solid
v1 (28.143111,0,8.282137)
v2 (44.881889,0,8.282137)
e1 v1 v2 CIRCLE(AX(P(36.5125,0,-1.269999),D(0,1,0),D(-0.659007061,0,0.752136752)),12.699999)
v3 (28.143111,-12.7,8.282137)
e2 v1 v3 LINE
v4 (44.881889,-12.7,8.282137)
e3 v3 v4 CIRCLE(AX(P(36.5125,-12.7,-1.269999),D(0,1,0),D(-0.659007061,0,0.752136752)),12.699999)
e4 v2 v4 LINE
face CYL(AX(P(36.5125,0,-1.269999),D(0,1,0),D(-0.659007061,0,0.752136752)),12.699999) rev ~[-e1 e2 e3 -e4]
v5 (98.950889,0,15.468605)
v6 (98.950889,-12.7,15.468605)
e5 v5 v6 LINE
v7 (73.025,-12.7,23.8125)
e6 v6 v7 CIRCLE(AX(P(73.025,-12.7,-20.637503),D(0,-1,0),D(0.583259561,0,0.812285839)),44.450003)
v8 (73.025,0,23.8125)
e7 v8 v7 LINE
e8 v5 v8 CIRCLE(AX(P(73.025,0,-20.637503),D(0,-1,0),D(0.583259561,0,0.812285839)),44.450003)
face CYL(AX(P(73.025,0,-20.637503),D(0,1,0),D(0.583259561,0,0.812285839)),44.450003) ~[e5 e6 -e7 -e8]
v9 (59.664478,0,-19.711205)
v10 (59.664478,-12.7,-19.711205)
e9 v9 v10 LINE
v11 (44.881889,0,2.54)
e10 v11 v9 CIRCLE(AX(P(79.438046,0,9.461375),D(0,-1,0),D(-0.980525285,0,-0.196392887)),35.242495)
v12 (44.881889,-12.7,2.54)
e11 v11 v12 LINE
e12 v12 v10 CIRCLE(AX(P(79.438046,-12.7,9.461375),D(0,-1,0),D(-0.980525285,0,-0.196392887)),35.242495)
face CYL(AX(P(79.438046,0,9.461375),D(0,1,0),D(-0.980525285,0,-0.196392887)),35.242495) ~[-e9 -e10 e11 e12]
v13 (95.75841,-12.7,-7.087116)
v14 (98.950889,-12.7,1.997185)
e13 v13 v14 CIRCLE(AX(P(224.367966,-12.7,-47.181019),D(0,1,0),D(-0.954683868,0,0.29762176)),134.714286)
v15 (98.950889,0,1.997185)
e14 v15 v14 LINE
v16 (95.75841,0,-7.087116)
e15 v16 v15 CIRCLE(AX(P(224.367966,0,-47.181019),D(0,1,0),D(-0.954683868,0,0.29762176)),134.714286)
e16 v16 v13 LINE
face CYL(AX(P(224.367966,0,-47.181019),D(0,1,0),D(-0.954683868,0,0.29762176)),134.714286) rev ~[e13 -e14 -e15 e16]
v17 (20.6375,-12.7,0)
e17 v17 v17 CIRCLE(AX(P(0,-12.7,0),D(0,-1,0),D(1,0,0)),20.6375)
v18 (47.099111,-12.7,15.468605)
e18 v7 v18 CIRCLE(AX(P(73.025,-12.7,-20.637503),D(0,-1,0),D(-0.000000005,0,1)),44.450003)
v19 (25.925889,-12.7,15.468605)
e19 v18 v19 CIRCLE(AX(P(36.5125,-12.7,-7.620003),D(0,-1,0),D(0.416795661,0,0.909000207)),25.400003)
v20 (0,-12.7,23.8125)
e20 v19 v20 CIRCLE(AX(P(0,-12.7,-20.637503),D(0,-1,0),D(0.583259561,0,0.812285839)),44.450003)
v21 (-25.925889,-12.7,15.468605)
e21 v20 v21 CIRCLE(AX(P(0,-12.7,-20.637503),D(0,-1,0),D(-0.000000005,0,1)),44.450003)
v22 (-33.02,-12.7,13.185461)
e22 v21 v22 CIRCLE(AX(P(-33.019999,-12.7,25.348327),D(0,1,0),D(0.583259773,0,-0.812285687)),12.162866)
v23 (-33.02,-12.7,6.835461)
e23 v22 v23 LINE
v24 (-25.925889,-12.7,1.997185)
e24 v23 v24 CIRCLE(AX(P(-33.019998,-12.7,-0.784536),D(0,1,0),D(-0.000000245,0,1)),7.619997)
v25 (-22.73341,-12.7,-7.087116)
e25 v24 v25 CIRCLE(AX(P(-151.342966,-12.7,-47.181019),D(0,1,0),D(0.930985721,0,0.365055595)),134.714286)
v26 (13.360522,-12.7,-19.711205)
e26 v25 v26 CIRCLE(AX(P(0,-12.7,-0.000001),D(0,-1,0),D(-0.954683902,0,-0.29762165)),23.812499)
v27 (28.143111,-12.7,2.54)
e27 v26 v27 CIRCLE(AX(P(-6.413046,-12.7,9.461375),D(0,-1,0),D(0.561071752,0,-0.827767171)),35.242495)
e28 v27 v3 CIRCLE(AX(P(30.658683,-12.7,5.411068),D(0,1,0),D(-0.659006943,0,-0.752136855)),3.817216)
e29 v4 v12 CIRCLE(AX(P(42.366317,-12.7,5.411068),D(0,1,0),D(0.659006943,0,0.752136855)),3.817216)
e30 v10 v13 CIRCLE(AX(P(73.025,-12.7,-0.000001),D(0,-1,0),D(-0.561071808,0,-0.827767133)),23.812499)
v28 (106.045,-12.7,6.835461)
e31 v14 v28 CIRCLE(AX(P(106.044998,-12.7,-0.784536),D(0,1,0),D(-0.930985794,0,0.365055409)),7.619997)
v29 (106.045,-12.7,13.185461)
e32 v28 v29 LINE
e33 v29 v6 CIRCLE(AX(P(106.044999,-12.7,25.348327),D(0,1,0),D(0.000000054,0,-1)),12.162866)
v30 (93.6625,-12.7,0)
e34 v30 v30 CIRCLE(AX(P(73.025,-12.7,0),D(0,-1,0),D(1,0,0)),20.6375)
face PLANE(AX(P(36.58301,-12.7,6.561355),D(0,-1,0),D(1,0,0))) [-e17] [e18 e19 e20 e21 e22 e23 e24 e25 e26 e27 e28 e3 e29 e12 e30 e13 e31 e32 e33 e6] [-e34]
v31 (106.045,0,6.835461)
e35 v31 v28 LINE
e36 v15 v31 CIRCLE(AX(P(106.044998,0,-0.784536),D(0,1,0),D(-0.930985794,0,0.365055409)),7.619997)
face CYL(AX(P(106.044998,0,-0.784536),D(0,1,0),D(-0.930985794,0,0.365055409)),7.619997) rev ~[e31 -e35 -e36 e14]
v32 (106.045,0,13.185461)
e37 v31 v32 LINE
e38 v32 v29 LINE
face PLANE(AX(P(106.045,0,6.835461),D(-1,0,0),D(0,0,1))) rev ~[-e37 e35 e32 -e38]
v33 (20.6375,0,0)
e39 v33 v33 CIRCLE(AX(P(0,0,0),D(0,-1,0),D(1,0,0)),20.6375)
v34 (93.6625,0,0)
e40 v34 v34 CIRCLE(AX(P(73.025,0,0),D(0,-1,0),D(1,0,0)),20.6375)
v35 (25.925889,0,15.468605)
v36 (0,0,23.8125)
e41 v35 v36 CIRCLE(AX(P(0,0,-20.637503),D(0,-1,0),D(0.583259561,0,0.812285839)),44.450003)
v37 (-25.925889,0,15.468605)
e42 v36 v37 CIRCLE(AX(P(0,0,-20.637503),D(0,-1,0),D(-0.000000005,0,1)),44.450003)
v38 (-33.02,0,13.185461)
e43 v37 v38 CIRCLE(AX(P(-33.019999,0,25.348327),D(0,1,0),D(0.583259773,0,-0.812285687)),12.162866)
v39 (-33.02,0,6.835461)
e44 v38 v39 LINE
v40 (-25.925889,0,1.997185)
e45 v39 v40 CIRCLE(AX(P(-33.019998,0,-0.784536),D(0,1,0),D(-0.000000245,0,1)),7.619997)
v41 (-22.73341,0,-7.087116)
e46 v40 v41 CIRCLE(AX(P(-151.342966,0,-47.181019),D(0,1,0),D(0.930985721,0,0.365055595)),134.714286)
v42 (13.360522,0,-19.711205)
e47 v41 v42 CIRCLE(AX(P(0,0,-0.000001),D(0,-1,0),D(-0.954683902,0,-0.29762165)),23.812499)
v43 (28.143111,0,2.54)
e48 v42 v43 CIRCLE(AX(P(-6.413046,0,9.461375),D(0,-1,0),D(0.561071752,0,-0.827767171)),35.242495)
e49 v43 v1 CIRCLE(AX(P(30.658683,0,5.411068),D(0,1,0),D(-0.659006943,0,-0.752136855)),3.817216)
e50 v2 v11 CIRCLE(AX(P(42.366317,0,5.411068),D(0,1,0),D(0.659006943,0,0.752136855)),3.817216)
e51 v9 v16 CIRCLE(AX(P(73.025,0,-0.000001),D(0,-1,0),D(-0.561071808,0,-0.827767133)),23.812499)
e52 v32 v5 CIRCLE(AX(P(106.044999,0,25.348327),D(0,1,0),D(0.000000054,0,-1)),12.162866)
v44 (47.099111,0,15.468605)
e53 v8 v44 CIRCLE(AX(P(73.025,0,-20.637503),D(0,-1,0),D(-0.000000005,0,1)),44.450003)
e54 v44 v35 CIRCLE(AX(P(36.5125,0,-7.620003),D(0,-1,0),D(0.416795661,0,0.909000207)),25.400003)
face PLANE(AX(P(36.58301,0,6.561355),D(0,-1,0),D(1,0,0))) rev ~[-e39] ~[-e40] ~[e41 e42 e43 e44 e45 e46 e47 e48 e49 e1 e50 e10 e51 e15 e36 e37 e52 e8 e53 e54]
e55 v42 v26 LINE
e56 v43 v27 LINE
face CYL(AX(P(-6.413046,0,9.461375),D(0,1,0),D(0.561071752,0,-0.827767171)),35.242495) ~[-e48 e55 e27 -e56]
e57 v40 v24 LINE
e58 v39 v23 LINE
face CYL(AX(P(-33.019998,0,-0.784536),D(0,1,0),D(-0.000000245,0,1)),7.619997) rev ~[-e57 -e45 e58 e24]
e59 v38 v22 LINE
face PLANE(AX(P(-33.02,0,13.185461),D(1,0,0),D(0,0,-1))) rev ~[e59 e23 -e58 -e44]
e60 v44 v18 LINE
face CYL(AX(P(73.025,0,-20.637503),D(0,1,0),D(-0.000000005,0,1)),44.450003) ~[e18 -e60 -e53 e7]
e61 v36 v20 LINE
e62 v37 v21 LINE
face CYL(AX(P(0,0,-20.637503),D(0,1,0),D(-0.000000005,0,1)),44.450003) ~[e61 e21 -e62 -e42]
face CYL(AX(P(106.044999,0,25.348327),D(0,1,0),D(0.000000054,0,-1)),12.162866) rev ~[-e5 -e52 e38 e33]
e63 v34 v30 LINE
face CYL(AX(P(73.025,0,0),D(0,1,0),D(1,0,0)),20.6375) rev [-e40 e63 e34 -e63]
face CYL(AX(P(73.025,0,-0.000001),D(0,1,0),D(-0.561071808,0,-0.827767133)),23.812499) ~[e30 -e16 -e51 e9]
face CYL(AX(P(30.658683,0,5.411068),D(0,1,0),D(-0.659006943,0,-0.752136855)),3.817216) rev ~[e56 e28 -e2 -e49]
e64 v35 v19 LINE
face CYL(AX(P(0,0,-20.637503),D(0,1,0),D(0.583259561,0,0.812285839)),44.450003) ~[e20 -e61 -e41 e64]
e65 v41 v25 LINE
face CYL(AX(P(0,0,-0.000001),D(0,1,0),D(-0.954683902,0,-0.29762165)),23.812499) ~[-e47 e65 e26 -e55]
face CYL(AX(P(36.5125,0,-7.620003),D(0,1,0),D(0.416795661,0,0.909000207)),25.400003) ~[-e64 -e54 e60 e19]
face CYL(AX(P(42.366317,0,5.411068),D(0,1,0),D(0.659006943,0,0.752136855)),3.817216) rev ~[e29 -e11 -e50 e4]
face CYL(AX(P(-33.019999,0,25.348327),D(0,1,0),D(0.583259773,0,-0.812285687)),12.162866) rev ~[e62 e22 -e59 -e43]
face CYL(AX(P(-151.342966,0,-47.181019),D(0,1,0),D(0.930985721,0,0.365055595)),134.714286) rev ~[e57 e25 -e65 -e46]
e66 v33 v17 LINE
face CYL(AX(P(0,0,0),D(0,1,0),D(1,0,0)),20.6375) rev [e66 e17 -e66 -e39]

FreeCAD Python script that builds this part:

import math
import FreeCAD as App
import Part
import Sketcher
from FreeCAD import Vector
Q = App.Units.Quantity

doc = App.newDocument("Part")
body = doc.addObject("PartDesign::Body", "Body")

# Sketch on XZ plane
sketch1 = body.newObject("Sketcher::SketchObject", "Sketch")
sketch1.AttachmentSupport = (doc.getObject("XZ_Plane"), [""])
sketch1.MapMode = "FlatFace"
sketch1.addGeometry([
    Part.ArcOfCircle(Part.Circle(Vector(-6.413046, 9.461375, 0), Vector(0, 0, 1), 35.242495), math.radians(-55.870051), math.radians(-11.326104)),  # 0
    Part.ArcOfCircle(Part.Circle(Vector(30.658683, 5.411068, 0), Vector(0, 0, 1), 3.817216), math.radians(131.224181), math.radians(228.775819)),  # 1
    Part.ArcOfCircle(Part.Circle(Vector(36.5125, -1.269999, 0), Vector(0, 0, 1), 12.699999), math.radians(48.77581), math.radians(131.22419)),  # 2
    Part.ArcOfCircle(Part.Circle(Vector(42.366317, 5.411068, 0), Vector(0, 0, 1), 3.817216), math.radians(-48.775819), math.radians(48.775819)),  # 3
    Part.ArcOfCircle(Part.Circle(Vector(79.438046, 9.461375, 0), Vector(0, 0, 1), 35.242495), math.radians(-168.673896), math.radians(-124.129949)),  # 4
    Part.ArcOfCircle(Part.Circle(Vector(73.025, -0.000001, 0), Vector(0, 0, 1), 23.812499), math.radians(-124.129953), math.radians(-17.31481)),  # 5
    Part.ArcOfCircle(Part.Circle(Vector(224.367966, -47.181019, 0), Vector(0, 0, 1), 134.714286), math.radians(158.588996), math.radians(162.685184)),  # 6
    Part.ArcOfCircle(Part.Circle(Vector(106.044998, -0.784536, 0), Vector(0, 0, 1), 7.619997), math.radians(89.999986), math.radians(158.589007)),  # 7
    Part.LineSegment(Vector(106.045, 6.835461, 0), Vector(106.045, 13.185461, 0)),  # 8
    Part.ArcOfCircle(Part.Circle(Vector(106.044999, 25.348327, 0), Vector(0, 0, 1), 12.162866), math.radians(-125.680146), math.radians(-89.999997)),  # 9
    Part.ArcOfCircle(Part.Circle(Vector(73.025, -20.637503, 0), Vector(0, 0, 1), 44.450003), math.radians(54.319869), math.radians(90)),  # 10
    Part.ArcOfCircle(Part.Circle(Vector(73.025, -20.637503, 0), Vector(0, 0, 1), 44.450003), math.radians(90), math.radians(125.680131)),  # 11
    Part.ArcOfCircle(Part.Circle(Vector(36.5125, -7.620003, 0), Vector(0, 0, 1), 25.400003), math.radians(65.367551), math.radians(114.632449)),  # 12
    Part.ArcOfCircle(Part.Circle(Vector(0, -20.637503, 0), Vector(0, 0, 1), 44.450003), math.radians(54.319869), math.radians(90)),  # 13
    Part.ArcOfCircle(Part.Circle(Vector(0, -20.637503, 0), Vector(0, 0, 1), 44.450003), math.radians(90), math.radians(125.680131)),  # 14
    Part.ArcOfCircle(Part.Circle(Vector(-33.019999, 25.348327, 0), Vector(0, 0, 1), 12.162866), math.radians(-90.000003), math.radians(-54.319854)),  # 15
    Part.LineSegment(Vector(-33.02, 13.185461, 0), Vector(-33.02, 6.835461, 0)),  # 16
    Part.ArcOfCircle(Part.Circle(Vector(-33.019998, -0.784536, 0), Vector(0, 0, 1), 7.619997), math.radians(21.410993), math.radians(90.000014)),  # 17
    Part.ArcOfCircle(Part.Circle(Vector(-151.342966, -47.181019, 0), Vector(0, 0, 1), 134.714286), math.radians(17.314816), math.radians(21.411004)),  # 18
    Part.ArcOfCircle(Part.Circle(Vector(0, -0.000001, 0), Vector(0, 0, 1), 23.812499), math.radians(-162.68519), math.radians(-55.870047)),  # 19
    Part.Circle(Vector(0, 0, 0), Vector(0, 0, 1), 20.6375),  # 20
    Part.Circle(Vector(73.025, 0, 0), Vector(0, 0, 1), 20.6375),  # 21
], False)
sketch1.addConstraint([
    Sketcher.Constraint("Coincident", 0, 2, 1, 2),
    Sketcher.Constraint("Tangent", 1, 1, 2, 2),
    Sketcher.Constraint("Tangent", 2, 1, 3, 2),
    Sketcher.Constraint("Coincident", 3, 1, 4, 1),
    Sketcher.Constraint("Tangent", 4, 2, 5, 1),
    Sketcher.Constraint("Tangent", 5, 2, 6, 2),
    Sketcher.Constraint("Tangent", 6, 1, 7, 2),
    Sketcher.Constraint("Coincident", 7, 1, 8, 1),
    Sketcher.Constraint("Coincident", 8, 2, 9, 2),
    Sketcher.Constraint("Tangent", 9, 1, 10, 1),
    Sketcher.Constraint("Tangent", 10, 2, 11, 1),
    Sketcher.Constraint("Coincident", 11, 2, 12, 1),
    Sketcher.Constraint("Coincident", 12, 2, 13, 1),
    Sketcher.Constraint("Tangent", 13, 2, 14, 1),
    Sketcher.Constraint("Tangent", 14, 2, 15, 2),
    Sketcher.Constraint("Coincident", 15, 1, 16, 1),
    Sketcher.Constraint("Coincident", 16, 2, 17, 2),
    Sketcher.Constraint("Tangent", 17, 1, 18, 2),
    Sketcher.Constraint("Tangent", 18, 1, 19, 1),
    Sketcher.Constraint("Tangent", 19, 2, 0, 1),
    Sketcher.Constraint("Vertical", 8),
    Sketcher.Constraint("Vertical", 16),
    Sketcher.Constraint("Coincident", 19, 3, -1, 1),
    Sketcher.Constraint("Coincident", 20, 3, -1, 1),
    Sketcher.Constraint("Coincident", 21, 3, 5, 3),
    Sketcher.Constraint("Equal", 1, 3),
    Sketcher.Constraint("Equal", 0, 4),
    Sketcher.Constraint("Equal", 10, 11),
    Sketcher.Constraint("Equal", 11, 13),
    Sketcher.Constraint("Equal", 13, 14),
    Sketcher.Constraint("Equal", 9, 15),
    Sketcher.Constraint("Equal", 7, 17),
    Sketcher.Constraint("Equal", 6, 18),
    Sketcher.Constraint("Equal", 5, 19),
    Sketcher.Constraint("Equal", 20, 21),
    Sketcher.Constraint("Symmetric", 12, 2, 14, 2, -2),
    Sketcher.Constraint("PointOnObject", 5, 3, -1),
    Sketcher.Constraint("PointOnObject", 13, 2, -2),
    Sketcher.Constraint("Horizontal", 1, 3, 3, 3),
    Sketcher.Constraint("Horizontal", 0, 3, 4, 3),
    Sketcher.Constraint("Horizontal", 11, 3, 13, 3),
    Sketcher.Constraint("Horizontal", 9, 3, 15, 3),
    Sketcher.Constraint("Horizontal", 7, 3, 17, 3),
    Sketcher.Constraint("Horizontal", 6, 3, 18, 3),
    Sketcher.Constraint("Horizontal", 0, 2, 3, 1),
    Sketcher.Constraint("Horizontal", 9, 1, 11, 2),
    Sketcher.Constraint("Vertical", 7, 3, 9, 3),
    Sketcher.Constraint("Vertical", 5, 3, 10, 3),
    Sketcher.Constraint("Vertical", 0, 2, 1, 1),
    Sketcher.Constraint("Vertical", 9, 3, 7, 1),
    Sketcher.Constraint("Vertical", 6, 1, 9, 1),
    Sketcher.Constraint("Vertical", 21, 3, 10, 2),
    Sketcher.Constraint("Vertical", 17, 3, 15, 1),
    Sketcher.Constraint("Radius", 12, Q("1.0000001 in")),
    Sketcher.Constraint("Radius", 2, Q("0.5 in")),
    Sketcher.Constraint("Radius", 7, Q("0.2999999 in")),
    Sketcher.Constraint("Radius", 10, Q("1.7500001 in")),
    Sketcher.Constraint("Diameter", 20, Q("1.625 in")),
    Sketcher.Constraint("Radius", 5, Q("0.9375 in")),
    Sketcher.Constraint("DistanceY", 8, 1, 8, 2, Q("0.25 in")),
    Sketcher.Constraint("DistanceY", 12, 3, -1, 1, Q("0.3000001 in")),
    Sketcher.Constraint("DistanceX", 15, 3, -1, 1, Q("1.3 in")),
    Sketcher.Constraint("DistanceY", -1, 1, 0, 2, Q("0.1 in")),
    Sketcher.Constraint("Radius", 0, Q("1.3874998 in")),
    Sketcher.Constraint("DistanceY", 2, 3, -1, 1, Q("0.05 in")),
    Sketcher.Constraint("DistanceX", -1, 1, 2, 3, Q("1.4375 in")),
    Sketcher.Constraint("Radius", 1, Q("3.817216 mm")),
    Sketcher.Constraint("Radius", 6, Q("134.714286 mm")),
])
pad1 = body.newObject("PartDesign::Pad", "Pad")
pad1.Profile = sketch1
pad1.Length = Q("0.5 in")

doc.recompute()
